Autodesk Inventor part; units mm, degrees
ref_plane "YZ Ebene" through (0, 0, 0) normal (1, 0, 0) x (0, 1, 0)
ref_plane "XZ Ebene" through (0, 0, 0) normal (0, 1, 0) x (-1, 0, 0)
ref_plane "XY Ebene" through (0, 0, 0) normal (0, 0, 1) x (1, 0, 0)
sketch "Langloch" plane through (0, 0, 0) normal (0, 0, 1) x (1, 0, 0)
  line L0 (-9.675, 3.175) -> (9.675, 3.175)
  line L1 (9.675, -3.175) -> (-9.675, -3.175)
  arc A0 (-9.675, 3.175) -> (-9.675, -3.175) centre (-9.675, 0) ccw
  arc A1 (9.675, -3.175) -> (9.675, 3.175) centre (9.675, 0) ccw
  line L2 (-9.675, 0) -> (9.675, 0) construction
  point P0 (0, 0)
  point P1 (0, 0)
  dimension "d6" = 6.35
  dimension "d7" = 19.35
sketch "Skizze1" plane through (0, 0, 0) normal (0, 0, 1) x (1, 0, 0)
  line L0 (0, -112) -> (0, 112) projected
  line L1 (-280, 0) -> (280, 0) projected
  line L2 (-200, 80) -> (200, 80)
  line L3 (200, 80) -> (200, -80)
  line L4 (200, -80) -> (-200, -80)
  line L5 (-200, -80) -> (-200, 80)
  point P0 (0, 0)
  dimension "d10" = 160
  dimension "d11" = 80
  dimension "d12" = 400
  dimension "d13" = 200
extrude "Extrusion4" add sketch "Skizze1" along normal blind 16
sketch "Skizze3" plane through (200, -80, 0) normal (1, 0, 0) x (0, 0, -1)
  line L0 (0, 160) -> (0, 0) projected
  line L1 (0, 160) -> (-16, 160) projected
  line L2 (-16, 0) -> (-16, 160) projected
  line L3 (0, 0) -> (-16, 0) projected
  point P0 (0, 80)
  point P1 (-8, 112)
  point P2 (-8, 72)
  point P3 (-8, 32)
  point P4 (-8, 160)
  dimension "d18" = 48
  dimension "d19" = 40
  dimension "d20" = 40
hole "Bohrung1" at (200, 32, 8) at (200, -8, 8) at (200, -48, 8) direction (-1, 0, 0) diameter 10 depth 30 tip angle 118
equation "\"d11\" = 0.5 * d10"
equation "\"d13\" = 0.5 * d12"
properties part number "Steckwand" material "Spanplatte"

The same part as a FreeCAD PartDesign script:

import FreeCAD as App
import Part
import Sketcher

doc = App.newDocument("Part")
body = doc.addObject("PartDesign::Body", "Body")

# Sketch on XY plane
sketch1 = doc.addObject("Sketcher::SketchObject", "Sketch")
body.addObject(sketch1)
sketch1.AttachmentSupport = (doc.XY_Plane, [""])
sketch1.MapMode = "FlatFace"
sketch1.addGeometry([
    Part.LineSegment(App.Vector(-200, -80, 0), App.Vector(200, -80, 0)),
    Part.LineSegment(App.Vector(200, -80, 0), App.Vector(200, 80, 0)),
    Part.LineSegment(App.Vector(200, 80, 0), App.Vector(-200, 80, 0)),
    Part.LineSegment(App.Vector(-200, 80, 0), App.Vector(-200, -80, 0)),
], False)
sketch1.addConstraint([
    Sketcher.Constraint("Coincident", 0, 2, 1, 1),
    Sketcher.Constraint("Coincident", 1, 2, 2, 1),
    Sketcher.Constraint("Coincident", 2, 2, 3, 1),
    Sketcher.Constraint("Coincident", 3, 2, 0, 1),
    Sketcher.Constraint("Horizontal", 0),
    Sketcher.Constraint("Vertical", 1),
    Sketcher.Constraint("Horizontal", 2),
    Sketcher.Constraint("Vertical", 3),
    Sketcher.Constraint("Symmetric", 0, 2, 2, 2, -1, 1),
    Sketcher.Constraint("DistanceX", 0, 1, 0, 2, 400.0),
    Sketcher.Constraint("DistanceY", 1, 1, 1, 2, 160.0),
])
pad1 = doc.addObject("PartDesign::Pad", "Pad")
body.addObject(pad1)
pad1.Profile = sketch1
pad1.Length = 16

# Sketch on YZ plane
sketch2 = doc.addObject("Sketcher::SketchObject", "Sketch001")
body.addObject(sketch2)
sketch2.AttachmentSupport = (doc.YZ_Plane, [""])
sketch2.MapMode = "FlatFace"
sketch2.AttachmentOffset = App.Placement(App.Vector(0, 0, 200), App.Rotation())
sketch2.addGeometry([
    Part.Circle(App.Vector(32, 8, 0), App.Vector(0, 0, 1), 5),
    Part.Circle(App.Vector(-8, 8, 0), App.Vector(0, 0, 1), 5),
    Part.Circle(App.Vector(-48, 8, 0), App.Vector(0, 0, 1), 5),
], False)
sketch2.addConstraint([
    Sketcher.Constraint("Equal", 0, 1),
    Sketcher.Constraint("Equal", 1, 2),
    Sketcher.Constraint("Horizontal", 0, 3, 1, 3),
    Sketcher.Constraint("Horizontal", 1, 3, 2, 3),
    Sketcher.Constraint("Diameter", 0, 10.0),
    Sketcher.Constraint("DistanceX", -1, 1, 0, 3, 32.0),
    Sketcher.Constraint("DistanceY", -1, 1, 0, 3, 8.0),
    Sketcher.Constraint("DistanceX", 1, 3, -1, 1, 8.0),
    Sketcher.Constraint("DistanceX", 2, 3, -1, 1, 48.0),
])
doc.recompute()
hole = doc.addObject("PartDesign::Hole", "Hole")
body.addObject(hole)
hole.Profile = sketch2
hole.ThreadType = "None"
hole.Diameter = 10
hole.DepthType = "Dimension"
hole.Depth = 30
hole.DrillPoint = "Angled"
hole.DrillPointAngle = 118

doc.recompute()
